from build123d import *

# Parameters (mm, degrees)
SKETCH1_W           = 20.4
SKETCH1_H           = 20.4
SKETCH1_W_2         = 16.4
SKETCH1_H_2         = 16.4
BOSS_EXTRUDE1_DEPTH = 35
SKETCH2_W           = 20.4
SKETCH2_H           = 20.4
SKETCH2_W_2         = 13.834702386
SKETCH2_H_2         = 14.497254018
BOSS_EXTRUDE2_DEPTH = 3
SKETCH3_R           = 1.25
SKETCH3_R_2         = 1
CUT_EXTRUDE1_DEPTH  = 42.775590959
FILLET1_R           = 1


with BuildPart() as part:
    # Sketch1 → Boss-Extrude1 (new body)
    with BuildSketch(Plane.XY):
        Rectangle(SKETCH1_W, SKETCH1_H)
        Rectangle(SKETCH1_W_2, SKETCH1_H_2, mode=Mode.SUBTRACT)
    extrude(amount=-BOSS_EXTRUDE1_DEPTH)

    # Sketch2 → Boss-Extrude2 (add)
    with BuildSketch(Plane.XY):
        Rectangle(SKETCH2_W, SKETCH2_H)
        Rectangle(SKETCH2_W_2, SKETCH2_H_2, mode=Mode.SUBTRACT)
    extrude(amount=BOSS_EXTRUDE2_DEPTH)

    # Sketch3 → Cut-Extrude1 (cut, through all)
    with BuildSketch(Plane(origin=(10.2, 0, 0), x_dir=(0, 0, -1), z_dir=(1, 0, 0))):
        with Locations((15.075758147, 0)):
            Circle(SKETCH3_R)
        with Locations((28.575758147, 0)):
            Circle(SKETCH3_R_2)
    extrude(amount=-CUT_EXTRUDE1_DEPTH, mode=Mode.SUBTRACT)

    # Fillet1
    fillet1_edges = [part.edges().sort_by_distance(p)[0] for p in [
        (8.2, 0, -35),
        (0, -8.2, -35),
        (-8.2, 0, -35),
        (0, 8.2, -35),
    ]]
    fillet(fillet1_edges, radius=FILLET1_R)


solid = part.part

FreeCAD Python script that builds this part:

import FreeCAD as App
import Part
import Sketcher
from FreeCAD import Vector


def edges_at(feature, points):
    """Names of the edges that pass closest to the given points."""
    edges = feature.Shape.Edges
    near = lambda p: min(range(len(edges)), key=lambda i: edges[i].distToShape(Part.Vertex(*p))[0])
    return sorted({f"Edge{near(p) + 1}" for p in points})

doc = App.newDocument("Part")
params = doc.addObject("Spreadsheet::Sheet", "Params")
for row, (alias, value) in enumerate([
    ("sketch1_width", "20.4 mm"),
    ("sketch1_width2", "16.4 mm"),
    ("pad1_length", "35 mm"),
    ("sketch2_width", "20.4 mm"),
    ("pad2_length", "3 mm"),
    ("sketch3_diameter", "2 mm"),
    ("sketch3_diameter2", "2.5 mm"),
    ("fillet_radius", "1 mm"),
], start=1):
    params.set(f"A{row}", alias)
    params.set(f"B{row}", "=" + value)
    params.setAlias(f"B{row}", alias)

body = doc.addObject("PartDesign::Body", "Body")

# Sketch on XY plane
sketch1 = body.newObject("Sketcher::SketchObject", "Sketch")
sketch1.AttachmentSupport = (doc.getObject("XY_Plane"), [""])
sketch1.MapMode = "FlatFace"
sketch1.addGeometry(Part.LineSegment(Vector(-10, 10, 0), Vector(-10, -10, 0)), False)
sketch1.addGeometry(Part.LineSegment(Vector(-10, -10, 0), Vector(10, -10, 0)), False)
sketch1.addGeometry(Part.LineSegment(Vector(10, -10, 0), Vector(10, 10, 0)), False)
sketch1.addGeometry(Part.LineSegment(Vector(10, 10, 0), Vector(-10, 10, 0)), False)
sketch1.addGeometry(Part.LineSegment(Vector(8, -8, 0), Vector(-8, -8, 0)), False)
sketch1.addGeometry(Part.LineSegment(Vector(-8, -8, 0), Vector(-8, 8, 0)), False)
sketch1.addGeometry(Part.LineSegment(Vector(-8, 8, 0), Vector(8, 8, 0)), False)
sketch1.addGeometry(Part.LineSegment(Vector(8, 8, 0), Vector(8, -8, 0)), False)
sketch1.addConstraint(Sketcher.Constraint("Coincident", 0, 2, 1, 1))
sketch1.addConstraint(Sketcher.Constraint("Coincident", 1, 2, 2, 1))
sketch1.addConstraint(Sketcher.Constraint("Coincident", 2, 2, 3, 1))
sketch1.addConstraint(Sketcher.Constraint("Coincident", 3, 2, 0, 1))
sketch1.addConstraint(Sketcher.Constraint("Coincident", 4, 2, 5, 1))
sketch1.addConstraint(Sketcher.Constraint("Coincident", 5, 2, 6, 1))
sketch1.addConstraint(Sketcher.Constraint("Coincident", 6, 2, 7, 1))
sketch1.addConstraint(Sketcher.Constraint("Coincident", 7, 2, 4, 1))
sketch1.addConstraint(Sketcher.Constraint("Vertical", 0))
sketch1.addConstraint(Sketcher.Constraint("Horizontal", 1))
sketch1.addConstraint(Sketcher.Constraint("Vertical", 2))
sketch1.addConstraint(Sketcher.Constraint("Horizontal", 3))
sketch1.addConstraint(Sketcher.Constraint("Horizontal", 4))
sketch1.addConstraint(Sketcher.Constraint("Vertical", 5))
sketch1.addConstraint(Sketcher.Constraint("Horizontal", 6))
sketch1.addConstraint(Sketcher.Constraint("Vertical", 7))
sketch1.addConstraint(Sketcher.Constraint("Symmetric", 0, 2, 2, 2, -1, 1))
sketch1.addConstraint(Sketcher.Constraint("Symmetric", 4, 2, 6, 2, -1, 1))
sketch1.addConstraint(Sketcher.Constraint("Equal", 3, 0))
sketch1.addConstraint(Sketcher.Constraint("Equal", 6, 5))
sketch1.addConstraint(Sketcher.Constraint("DistanceX", 1, 1, 1, 2, 20.4))
sketch1.addConstraint(Sketcher.Constraint("DistanceX", 4, 2, 4, 1, 16.4))
sketch1.setExpression("Constraints[20]", "Params.sketch1_width")
sketch1.setExpression("Constraints[21]", "Params.sketch1_width2")
pad1 = body.newObject("PartDesign::Pad", "Pad")
pad1.Profile = sketch1
pad1.setExpression("Length", "Params.pad1_length")
pad1.Reversed = True

# Sketch on XY plane
sketch2 = body.newObject("Sketcher::SketchObject", "Sketch001")
sketch2.AttachmentSupport = (doc.getObject("XY_Plane"), [""])
sketch2.MapMode = "FlatFace"
sketch2.addGeometry(Part.LineSegment(Vector(-10, 10, 0), Vector(-10, -10, 0)), False)
sketch2.addGeometry(Part.LineSegment(Vector(-10, -10, 0), Vector(10, -10, 0)), False)
sketch2.addGeometry(Part.LineSegment(Vector(10, -10, 0), Vector(10, 10, 0)), False)
sketch2.addGeometry(Part.LineSegment(Vector(10, 10, 0), Vector(-10, 10, 0)), False)
sketch2.addGeometry(Part.LineSegment(Vector(7, -7, 0), Vector(-7, -7, 0)), False)
sketch2.addGeometry(Part.LineSegment(Vector(-7, -7, 0), Vector(-7, 7, 0)), False)
sketch2.addGeometry(Part.LineSegment(Vector(-7, 7, 0), Vector(7, 7, 0)), False)
sketch2.addGeometry(Part.LineSegment(Vector(7, 7, 0), Vector(7, -7, 0)), False)
sketch2.addConstraint(Sketcher.Constraint("Coincident", 0, 2, 1, 1))
sketch2.addConstraint(Sketcher.Constraint("Coincident", 1, 2, 2, 1))
sketch2.addConstraint(Sketcher.Constraint("Coincident", 2, 2, 3, 1))
sketch2.addConstraint(Sketcher.Constraint("Coincident", 3, 2, 0, 1))
sketch2.addConstraint(Sketcher.Constraint("Coincident", 4, 2, 5, 1))
sketch2.addConstraint(Sketcher.Constraint("Coincident", 5, 2, 6, 1))
sketch2.addConstraint(Sketcher.Constraint("Coincident", 6, 2, 7, 1))
sketch2.addConstraint(Sketcher.Constraint("Coincident", 7, 2, 4, 1))
sketch2.addConstraint(Sketcher.Constraint("Vertical", 0))
sketch2.addConstraint(Sketcher.Constraint("Horizontal", 1))
sketch2.addConstraint(Sketcher.Constraint("Vertical", 2))
sketch2.addConstraint(Sketcher.Constraint("Horizontal", 3))
sketch2.addConstraint(Sketcher.Constraint("Horizontal", 4))
sketch2.addConstraint(Sketcher.Constraint("Vertical", 5))
sketch2.addConstraint(Sketcher.Constraint("Horizontal", 6))
sketch2.addConstraint(Sketcher.Constraint("Vertical", 7))
sketch2.addConstraint(Sketcher.Constraint("Symmetric", 0, 2, 2, 2, -1, 1))
sketch2.addConstraint(Sketcher.Constraint("Symmetric", 4, 2, 6, 2, -1, 1))
sketch2.addConstraint(Sketcher.Constraint("Equal", 3, 0))
sketch2.addConstraint(Sketcher.Constraint("DistanceX", 1, 1, 1, 2, 20.4))
sketch2.addConstraint(Sketcher.Constraint("DistanceX", 4, 2, 4, 1, 13.834702))
sketch2.addConstraint(Sketcher.Constraint("DistanceY", 5, 1, 5, 2, 14.497254))
sketch2.setExpression("Constraints[19]", "Params.sketch2_width")
pad2 = body.newObject("PartDesign::Pad", "Pad001")
pad2.Profile = sketch2
pad2.setExpression("Length", "Params.pad2_length")

# Sketch on YZ plane
sketch3 = body.newObject("Sketcher::SketchObject", "Sketch002")
sketch3.AttachmentSupport = (doc.getObject("YZ_Plane"), [""])
sketch3.MapMode = "FlatFace"
sketch3.AttachmentOffset = App.Placement(Vector(0, 0, 10.2), App.Rotation())
sketch3.addGeometry(Part.Circle(Vector(0, -15.1, 0), Vector(0, 0, 1), 1.2), False)
sketch3.addGeometry(Part.Circle(Vector(0, -28.6, 0), Vector(0, 0, 1), 1), False)
sketch3.addConstraint(Sketcher.Constraint("PointOnObject", 0, 3, -2))
sketch3.addConstraint(Sketcher.Constraint("PointOnObject", 1, 3, -2))
sketch3.addConstraint(Sketcher.Constraint("Diameter", 1, 2.0))
sketch3.addConstraint(Sketcher.Constraint("Diameter", 0, 2.5))
sketch3.addConstraint(Sketcher.Constraint("DistanceY", 1, 3, 0, 3, 13.5))
sketch3.addConstraint(Sketcher.Constraint("DistanceY", 0, 3, -1, 1, 15.075758))
sketch3.setExpression("Constraints[2]", "Params.sketch3_diameter")
sketch3.setExpression("Constraints[3]", "Params.sketch3_diameter2")
pocket1 = body.newObject("PartDesign::Pocket", "Pocket")
pocket1.Profile = sketch3
pocket1.Type = "ThroughAll"
doc.recompute()

fillet = body.newObject("PartDesign::Fillet", "Fillet")
fillet.Base = (pocket1, edges_at(pocket1, [
    (8.2, 0, -35),
    (0, -8.2, -35),
    (-8.2, 0, -35),
    (0, 8.2, -35),
]))
fillet.setExpression("Radius", "Params.fillet_radius")

doc.recompute()
